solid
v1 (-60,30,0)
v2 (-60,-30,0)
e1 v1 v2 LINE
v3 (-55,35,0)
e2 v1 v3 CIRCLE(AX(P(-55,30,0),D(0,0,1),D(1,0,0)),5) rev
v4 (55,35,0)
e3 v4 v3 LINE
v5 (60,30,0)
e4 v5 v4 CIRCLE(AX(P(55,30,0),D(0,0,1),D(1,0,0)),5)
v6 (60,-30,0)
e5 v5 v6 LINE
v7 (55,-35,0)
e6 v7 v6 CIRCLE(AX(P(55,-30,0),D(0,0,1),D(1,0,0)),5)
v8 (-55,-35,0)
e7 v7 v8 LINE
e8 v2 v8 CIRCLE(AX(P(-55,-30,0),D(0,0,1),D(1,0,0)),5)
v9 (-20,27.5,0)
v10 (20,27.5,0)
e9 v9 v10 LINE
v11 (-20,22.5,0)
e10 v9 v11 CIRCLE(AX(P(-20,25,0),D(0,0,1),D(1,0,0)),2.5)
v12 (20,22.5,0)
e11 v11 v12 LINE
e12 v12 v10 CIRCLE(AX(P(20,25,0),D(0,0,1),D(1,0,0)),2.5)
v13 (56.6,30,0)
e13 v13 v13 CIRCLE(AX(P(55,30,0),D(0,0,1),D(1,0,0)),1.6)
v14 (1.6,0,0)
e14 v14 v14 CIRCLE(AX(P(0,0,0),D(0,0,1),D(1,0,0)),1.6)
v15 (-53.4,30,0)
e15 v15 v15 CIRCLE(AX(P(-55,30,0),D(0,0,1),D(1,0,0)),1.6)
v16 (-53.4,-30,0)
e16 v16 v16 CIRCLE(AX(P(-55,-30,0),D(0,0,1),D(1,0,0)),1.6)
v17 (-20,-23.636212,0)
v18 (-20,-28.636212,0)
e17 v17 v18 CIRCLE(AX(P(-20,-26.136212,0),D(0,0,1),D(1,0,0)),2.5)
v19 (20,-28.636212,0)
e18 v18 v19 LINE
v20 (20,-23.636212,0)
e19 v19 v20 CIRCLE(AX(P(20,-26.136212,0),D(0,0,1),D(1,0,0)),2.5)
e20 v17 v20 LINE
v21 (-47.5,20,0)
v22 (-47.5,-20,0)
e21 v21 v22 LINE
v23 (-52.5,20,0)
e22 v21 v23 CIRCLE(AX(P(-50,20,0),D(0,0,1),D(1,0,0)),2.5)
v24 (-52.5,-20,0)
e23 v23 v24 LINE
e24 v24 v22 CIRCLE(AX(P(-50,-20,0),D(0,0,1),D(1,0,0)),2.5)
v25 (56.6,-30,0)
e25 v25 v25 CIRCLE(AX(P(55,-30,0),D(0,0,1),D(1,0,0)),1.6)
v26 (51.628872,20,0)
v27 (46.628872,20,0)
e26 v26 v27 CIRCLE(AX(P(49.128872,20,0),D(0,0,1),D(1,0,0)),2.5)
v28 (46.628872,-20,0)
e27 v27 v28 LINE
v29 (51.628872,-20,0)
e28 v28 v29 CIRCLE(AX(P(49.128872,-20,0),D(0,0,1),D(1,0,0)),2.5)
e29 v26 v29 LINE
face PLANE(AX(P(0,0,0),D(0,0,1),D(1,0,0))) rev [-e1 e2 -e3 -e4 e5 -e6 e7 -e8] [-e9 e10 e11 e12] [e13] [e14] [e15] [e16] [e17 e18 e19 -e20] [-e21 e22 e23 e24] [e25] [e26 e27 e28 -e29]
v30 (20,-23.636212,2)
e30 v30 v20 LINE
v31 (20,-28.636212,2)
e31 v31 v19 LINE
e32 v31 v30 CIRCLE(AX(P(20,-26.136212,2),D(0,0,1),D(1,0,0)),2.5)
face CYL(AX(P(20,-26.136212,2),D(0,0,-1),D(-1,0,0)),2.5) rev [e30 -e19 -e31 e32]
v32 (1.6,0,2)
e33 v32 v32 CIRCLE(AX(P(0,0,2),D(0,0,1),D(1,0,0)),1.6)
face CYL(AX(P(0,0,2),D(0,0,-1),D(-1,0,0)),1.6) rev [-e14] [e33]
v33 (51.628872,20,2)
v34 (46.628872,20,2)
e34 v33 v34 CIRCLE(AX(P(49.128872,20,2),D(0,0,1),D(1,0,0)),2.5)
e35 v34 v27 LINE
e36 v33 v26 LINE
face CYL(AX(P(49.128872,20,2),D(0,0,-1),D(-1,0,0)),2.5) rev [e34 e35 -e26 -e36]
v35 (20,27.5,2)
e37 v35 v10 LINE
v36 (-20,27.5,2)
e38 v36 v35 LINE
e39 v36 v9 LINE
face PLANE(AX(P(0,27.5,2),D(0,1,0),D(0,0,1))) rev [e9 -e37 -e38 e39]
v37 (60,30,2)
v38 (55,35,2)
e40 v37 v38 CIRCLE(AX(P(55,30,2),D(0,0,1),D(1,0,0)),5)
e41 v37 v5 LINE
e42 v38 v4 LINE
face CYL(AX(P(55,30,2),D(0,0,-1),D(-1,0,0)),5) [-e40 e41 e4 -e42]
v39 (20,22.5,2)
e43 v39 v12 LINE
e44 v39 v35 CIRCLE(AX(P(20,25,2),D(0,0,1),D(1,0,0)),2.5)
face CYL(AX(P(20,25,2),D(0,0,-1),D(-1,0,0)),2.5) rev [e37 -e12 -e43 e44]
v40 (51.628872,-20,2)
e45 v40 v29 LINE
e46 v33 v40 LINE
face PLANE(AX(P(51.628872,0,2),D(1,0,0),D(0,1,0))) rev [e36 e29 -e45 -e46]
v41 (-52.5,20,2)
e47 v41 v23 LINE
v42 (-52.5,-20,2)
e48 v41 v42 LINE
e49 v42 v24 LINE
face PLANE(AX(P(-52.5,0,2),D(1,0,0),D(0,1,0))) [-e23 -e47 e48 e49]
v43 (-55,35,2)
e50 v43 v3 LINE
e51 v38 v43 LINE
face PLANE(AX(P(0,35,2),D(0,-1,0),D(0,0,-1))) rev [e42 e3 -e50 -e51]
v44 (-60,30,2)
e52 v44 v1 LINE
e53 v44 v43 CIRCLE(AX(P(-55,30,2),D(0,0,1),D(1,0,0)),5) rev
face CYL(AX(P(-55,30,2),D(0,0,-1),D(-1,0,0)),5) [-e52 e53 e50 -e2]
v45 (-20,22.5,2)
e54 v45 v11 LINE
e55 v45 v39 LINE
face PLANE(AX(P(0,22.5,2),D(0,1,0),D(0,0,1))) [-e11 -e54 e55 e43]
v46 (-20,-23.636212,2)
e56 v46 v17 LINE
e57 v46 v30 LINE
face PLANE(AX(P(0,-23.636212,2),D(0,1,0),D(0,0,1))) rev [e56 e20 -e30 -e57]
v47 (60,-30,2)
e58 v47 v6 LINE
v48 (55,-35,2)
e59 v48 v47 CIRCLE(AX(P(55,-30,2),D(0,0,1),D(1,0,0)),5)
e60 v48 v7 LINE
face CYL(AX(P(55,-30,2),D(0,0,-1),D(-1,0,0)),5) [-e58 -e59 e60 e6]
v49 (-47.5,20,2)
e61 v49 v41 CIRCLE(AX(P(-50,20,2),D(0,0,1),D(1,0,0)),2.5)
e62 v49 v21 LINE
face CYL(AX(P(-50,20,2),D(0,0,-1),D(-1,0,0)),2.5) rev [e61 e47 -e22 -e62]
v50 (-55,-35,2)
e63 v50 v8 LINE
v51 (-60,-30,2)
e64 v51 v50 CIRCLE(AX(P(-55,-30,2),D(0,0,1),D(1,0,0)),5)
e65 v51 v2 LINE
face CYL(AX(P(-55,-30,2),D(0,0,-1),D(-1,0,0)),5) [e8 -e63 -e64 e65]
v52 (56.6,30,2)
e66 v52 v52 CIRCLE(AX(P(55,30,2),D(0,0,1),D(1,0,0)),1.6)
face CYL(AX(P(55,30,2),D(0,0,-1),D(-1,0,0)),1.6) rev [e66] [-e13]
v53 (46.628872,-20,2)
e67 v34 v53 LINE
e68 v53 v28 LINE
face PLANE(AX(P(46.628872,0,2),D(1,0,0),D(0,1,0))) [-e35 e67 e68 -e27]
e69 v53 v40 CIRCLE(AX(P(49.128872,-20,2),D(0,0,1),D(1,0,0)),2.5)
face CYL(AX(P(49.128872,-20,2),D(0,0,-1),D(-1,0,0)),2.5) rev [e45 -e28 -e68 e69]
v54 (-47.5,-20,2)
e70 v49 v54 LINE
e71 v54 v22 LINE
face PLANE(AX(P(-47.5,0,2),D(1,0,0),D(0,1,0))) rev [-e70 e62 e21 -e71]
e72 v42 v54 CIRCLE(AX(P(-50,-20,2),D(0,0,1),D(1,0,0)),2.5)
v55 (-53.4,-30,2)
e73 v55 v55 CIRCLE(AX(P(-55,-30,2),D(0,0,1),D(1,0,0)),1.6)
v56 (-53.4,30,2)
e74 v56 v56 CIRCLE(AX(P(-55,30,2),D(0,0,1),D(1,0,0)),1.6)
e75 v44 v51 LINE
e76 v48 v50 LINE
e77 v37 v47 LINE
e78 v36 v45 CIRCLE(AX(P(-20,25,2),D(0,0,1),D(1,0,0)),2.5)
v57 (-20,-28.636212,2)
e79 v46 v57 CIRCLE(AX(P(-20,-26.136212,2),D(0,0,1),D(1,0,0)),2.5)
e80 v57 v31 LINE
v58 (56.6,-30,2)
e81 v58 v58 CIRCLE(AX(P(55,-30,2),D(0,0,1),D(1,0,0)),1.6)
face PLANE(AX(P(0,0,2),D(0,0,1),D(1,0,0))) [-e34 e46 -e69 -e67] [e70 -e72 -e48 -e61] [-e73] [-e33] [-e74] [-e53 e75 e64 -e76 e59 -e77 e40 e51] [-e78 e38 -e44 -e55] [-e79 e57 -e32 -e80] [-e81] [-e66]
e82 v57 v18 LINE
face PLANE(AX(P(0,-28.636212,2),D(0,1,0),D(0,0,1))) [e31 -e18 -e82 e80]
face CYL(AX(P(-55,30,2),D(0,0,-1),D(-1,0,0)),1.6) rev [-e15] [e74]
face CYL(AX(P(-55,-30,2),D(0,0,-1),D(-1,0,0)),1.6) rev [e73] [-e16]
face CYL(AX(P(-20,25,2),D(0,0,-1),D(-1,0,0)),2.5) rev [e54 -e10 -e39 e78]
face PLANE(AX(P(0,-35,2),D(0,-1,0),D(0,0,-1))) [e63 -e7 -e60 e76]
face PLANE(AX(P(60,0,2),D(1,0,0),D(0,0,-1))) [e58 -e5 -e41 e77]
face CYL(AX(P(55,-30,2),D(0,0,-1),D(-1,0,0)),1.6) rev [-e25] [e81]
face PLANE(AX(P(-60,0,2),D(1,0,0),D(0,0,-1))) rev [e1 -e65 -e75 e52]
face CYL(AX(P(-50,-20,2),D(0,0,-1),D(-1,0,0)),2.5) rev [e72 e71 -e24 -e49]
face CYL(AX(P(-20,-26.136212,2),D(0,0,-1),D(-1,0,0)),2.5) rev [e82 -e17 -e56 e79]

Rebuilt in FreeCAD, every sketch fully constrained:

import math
import FreeCAD as App
import Part
import Sketcher
from FreeCAD import Vector
Q = App.Units.Quantity

doc = App.newDocument("Part")
params = doc.addObject("Spreadsheet::Sheet", "Params")
for row, (alias, value) in enumerate([
    ("sketch1_radius", "5 mm"),
    ("sketch1_diameter", "3.2 mm"),
    ("sketch1_radius2", "2.5 mm"),
    ("sketch1_width", "110 mm"),
    ("sketch1_width2", "40 mm"),
    ("pad1_length", "2 mm"),
], start=1):
    params.set(f"A{row}", alias)
    params.set(f"B{row}", "=" + value)
    params.setAlias(f"B{row}", alias)

body = doc.addObject("PartDesign::Body", "Body")

# Sketch on XY plane
sketch1 = body.newObject("Sketcher::SketchObject", "Sketch")
sketch1.AttachmentSupport = (doc.getObject("XY_Plane"), [""])
sketch1.MapMode = "FlatFace"
sketch1.addGeometry([
    Part.LineSegment(Vector(55, 35, 0), Vector(-55, 35, 0)),  # 0
    Part.ArcOfCircle(Part.Circle(Vector(-55, 30, 0), Vector(0, 0, 1), 5), math.radians(90), math.radians(180)),  # 1
    Part.LineSegment(Vector(-60, 30, 0), Vector(-60, -30, 0)),  # 2
    Part.ArcOfCircle(Part.Circle(Vector(-55, -30, 0), Vector(0, 0, 1), 5), math.radians(180), math.radians(270)),  # 3
    Part.LineSegment(Vector(-55, -35, 0), Vector(55, -35, 0)),  # 4
    Part.ArcOfCircle(Part.Circle(Vector(55, -30, 0), Vector(0, 0, 1), 5), math.radians(-90), math.radians(0)),  # 5
    Part.LineSegment(Vector(60, -30, 0), Vector(60, 30, 0)),  # 6
    Part.ArcOfCircle(Part.Circle(Vector(55, 30, 0), Vector(0, 0, 1), 5), math.radians(0), math.radians(90)),  # 7
    Part.Circle(Vector(-55, -30, 0), Vector(0, 0, 1), 1.6),  # 8
    Part.ArcOfCircle(Part.Circle(Vector(-50, 20, 0), Vector(0, 0, 1), 2.5), math.radians(0), math.radians(180)),  # 9
    Part.LineSegment(Vector(-47.5, 20, 0), Vector(-47.5, -20, 0)),  # 10
    Part.ArcOfCircle(Part.Circle(Vector(-50, -20, 0), Vector(0, 0, 1), 2.5), math.radians(180), math.radians(360)),  # 11
    Part.LineSegment(Vector(-52.5, -20, 0), Vector(-52.5, 20, 0)),  # 12
    Part.ArcOfCircle(Part.Circle(Vector(-20, -26.136212, 0), Vector(0, 0, 1), 2.5), math.radians(90), math.radians(270)),  # 13
    Part.LineSegment(Vector(-20, -23.636212, 0), Vector(20, -23.636212, 0)),  # 14
    Part.ArcOfCircle(Part.Circle(Vector(20, -26.136212, 0), Vector(0, 0, 1), 2.5), math.radians(-90), math.radians(90)),  # 15
    Part.LineSegment(Vector(20, -28.636212, 0), Vector(-20, -28.636212, 0)),  # 16
    Part.Circle(Vector(55, -30, 0), Vector(0, 0, 1), 1.6),  # 17
    Part.Circle(Vector(0, 0, 0), Vector(0, 0, 1), 1.6),  # 18
    Part.ArcOfCircle(Part.Circle(Vector(49.128872, 20, 0), Vector(0, 0, 1), 2.5), math.radians(0), math.radians(180)),  # 19
    Part.LineSegment(Vector(51.628872, 20, 0), Vector(51.628872, -20, 0)),  # 20
    Part.ArcOfCircle(Part.Circle(Vector(49.128872, -20, 0), Vector(0, 0, 1), 2.5), math.radians(180), math.radians(360)),  # 21
    Part.LineSegment(Vector(46.628872, -20, 0), Vector(46.628872, 20, 0)),  # 22
    Part.Circle(Vector(-55, 30, 0), Vector(0, 0, 1), 1.6),  # 23
    Part.ArcOfCircle(Part.Circle(Vector(-20, 25, 0), Vector(0, 0, 1), 2.5), math.radians(90), math.radians(270)),  # 24
    Part.LineSegment(Vector(-20, 27.5, 0), Vector(20, 27.5, 0)),  # 25
    Part.ArcOfCircle(Part.Circle(Vector(20, 25, 0), Vector(0, 0, 1), 2.5), math.radians(-90), math.radians(90)),  # 26
    Part.LineSegment(Vector(20, 22.5, 0), Vector(-20, 22.5, 0)),  # 27
    Part.Circle(Vector(55, 30, 0), Vector(0, 0, 1), 1.6),  # 28
], False)
sketch1.addConstraint([
    Sketcher.Constraint("Tangent", 0, 2, 1, 1),
    Sketcher.Constraint("Tangent", 1, 2, 2, 1),
    Sketcher.Constraint("Tangent", 2, 2, 3, 1),
    Sketcher.Constraint("Tangent", 3, 2, 4, 1),
    Sketcher.Constraint("Tangent", 4, 2, 5, 1),
    Sketcher.Constraint("Tangent", 5, 2, 6, 1),
    Sketcher.Constraint("Tangent", 6, 2, 7, 1),
    Sketcher.Constraint("Tangent", 7, 2, 0, 1),
    Sketcher.Constraint("Tangent", 9, 1, 10, 1),
    Sketcher.Constraint("Tangent", 10, 2, 11, 2),
    Sketcher.Constraint("Tangent", 11, 1, 12, 1),
    Sketcher.Constraint("Tangent", 12, 2, 9, 2),
    Sketcher.Constraint("Tangent", 13, 1, 14, 1),
    Sketcher.Constraint("Tangent", 14, 2, 15, 2),
    Sketcher.Constraint("Tangent", 15, 1, 16, 1),
    Sketcher.Constraint("Tangent", 16, 2, 13, 2),
    Sketcher.Constraint("Tangent", 19, 1, 20, 1),
    Sketcher.Constraint("Tangent", 20, 2, 21, 2),
    Sketcher.Constraint("Tangent", 21, 1, 22, 1),
    Sketcher.Constraint("Tangent", 22, 2, 19, 2),
    Sketcher.Constraint("Tangent", 24, 1, 25, 1),
    Sketcher.Constraint("Tangent", 25, 2, 26, 2),
    Sketcher.Constraint("Tangent", 26, 1, 27, 1),
    Sketcher.Constraint("Tangent", 27, 2, 24, 2),
    Sketcher.Constraint("Horizontal", 0),
    Sketcher.Constraint("Vertical", 2),
    Sketcher.Constraint("Horizontal", 4),
    Sketcher.Constraint("Vertical", 6),
    Sketcher.Constraint("Vertical", 10),
    Sketcher.Constraint("Vertical", 12),
    Sketcher.Constraint("Horizontal", 14),
    Sketcher.Constraint("Horizontal", 16),
    Sketcher.Constraint("Vertical", 20),
    Sketcher.Constraint("Vertical", 22),
    Sketcher.Constraint("Horizontal", 25),
    Sketcher.Constraint("Horizontal", 27),
    Sketcher.Constraint("Coincident", 18, 3, -1, 1),
    Sketcher.Constraint("Coincident", 8, 3, 3, 3),
    Sketcher.Constraint("Coincident", 17, 3, 5, 3),
    Sketcher.Constraint("Coincident", 23, 3, 1, 3),
    Sketcher.Constraint("Coincident", 28, 3, 7, 3),
    Sketcher.Constraint("Equal", 1, 3),
    Sketcher.Constraint("Equal", 3, 5),
    Sketcher.Constraint("Equal", 5, 7),
    Sketcher.Constraint("Equal", 11, 13),
    Sketcher.Constraint("Equal", 8, 17),
    Sketcher.Constraint("Equal", 17, 18),
    Sketcher.Constraint("Equal", 15, 19),
    Sketcher.Constraint("Equal", 18, 23),
    Sketcher.Constraint("Equal", 21, 24),
    Sketcher.Constraint("Equal", 23, 28),
    Sketcher.Constraint("Symmetric", 1, 3, 5, 3, -1, 1),
    Sketcher.Constraint("Horizontal", 9, 3, 19, 3),
    Sketcher.Constraint("Horizontal", 11, 3, 21, 3),
    Sketcher.Constraint("Vertical", 13, 3, 24, 3),
    Sketcher.Constraint("Vertical", 15, 3, 26, 3),
    Sketcher.Constraint("Equal", 27, 10),
    Sketcher.Constraint("Radius", 1, Q("5 mm")),
    Sketcher.Constraint("Diameter", 8, Q("3.2 mm")),
    Sketcher.Constraint("Radius", 9, Q("2.5 mm")),
    Sketcher.Constraint("DistanceX", 0, 2, 0, 1, Q("110 mm")),
    Sketcher.Constraint("DistanceX", 14, 1, 14, 2, Q("40 mm")),
    Sketcher.Constraint("DistanceY", 2, 2, 2, 1, Q("60 mm")),
    Sketcher.Constraint("DistanceX", 9, 3, -1, 1, Q("50 mm")),
    Sketcher.Constraint("DistanceY", -1, 1, 9, 3, Q("20 mm")),
    Sketcher.Constraint("DistanceX", 13, 3, -1, 1, Q("20 mm")),
    Sketcher.Constraint("DistanceY", -1, 1, 24, 3, Q("25 mm")),
    Sketcher.Constraint("DistanceY", 13, 3, -1, 1, Q("26.136212 mm")),
    Sketcher.Constraint("DistanceX", -1, 1, 19, 3, Q("49.128872 mm")),
])
sketch1.setExpression("Constraints[57]", "Params.sketch1_radius")
sketch1.setExpression("Constraints[58]", "Params.sketch1_diameter")
sketch1.setExpression("Constraints[59]", "Params.sketch1_radius2")
sketch1.setExpression("Constraints[60]", "Params.sketch1_width")
sketch1.setExpression("Constraints[61]", "Params.sketch1_width2")
pad1 = body.newObject("PartDesign::Pad", "Pad")
pad1.Profile = sketch1
pad1.setExpression("Length", "Params.pad1_length")

doc.recompute()
